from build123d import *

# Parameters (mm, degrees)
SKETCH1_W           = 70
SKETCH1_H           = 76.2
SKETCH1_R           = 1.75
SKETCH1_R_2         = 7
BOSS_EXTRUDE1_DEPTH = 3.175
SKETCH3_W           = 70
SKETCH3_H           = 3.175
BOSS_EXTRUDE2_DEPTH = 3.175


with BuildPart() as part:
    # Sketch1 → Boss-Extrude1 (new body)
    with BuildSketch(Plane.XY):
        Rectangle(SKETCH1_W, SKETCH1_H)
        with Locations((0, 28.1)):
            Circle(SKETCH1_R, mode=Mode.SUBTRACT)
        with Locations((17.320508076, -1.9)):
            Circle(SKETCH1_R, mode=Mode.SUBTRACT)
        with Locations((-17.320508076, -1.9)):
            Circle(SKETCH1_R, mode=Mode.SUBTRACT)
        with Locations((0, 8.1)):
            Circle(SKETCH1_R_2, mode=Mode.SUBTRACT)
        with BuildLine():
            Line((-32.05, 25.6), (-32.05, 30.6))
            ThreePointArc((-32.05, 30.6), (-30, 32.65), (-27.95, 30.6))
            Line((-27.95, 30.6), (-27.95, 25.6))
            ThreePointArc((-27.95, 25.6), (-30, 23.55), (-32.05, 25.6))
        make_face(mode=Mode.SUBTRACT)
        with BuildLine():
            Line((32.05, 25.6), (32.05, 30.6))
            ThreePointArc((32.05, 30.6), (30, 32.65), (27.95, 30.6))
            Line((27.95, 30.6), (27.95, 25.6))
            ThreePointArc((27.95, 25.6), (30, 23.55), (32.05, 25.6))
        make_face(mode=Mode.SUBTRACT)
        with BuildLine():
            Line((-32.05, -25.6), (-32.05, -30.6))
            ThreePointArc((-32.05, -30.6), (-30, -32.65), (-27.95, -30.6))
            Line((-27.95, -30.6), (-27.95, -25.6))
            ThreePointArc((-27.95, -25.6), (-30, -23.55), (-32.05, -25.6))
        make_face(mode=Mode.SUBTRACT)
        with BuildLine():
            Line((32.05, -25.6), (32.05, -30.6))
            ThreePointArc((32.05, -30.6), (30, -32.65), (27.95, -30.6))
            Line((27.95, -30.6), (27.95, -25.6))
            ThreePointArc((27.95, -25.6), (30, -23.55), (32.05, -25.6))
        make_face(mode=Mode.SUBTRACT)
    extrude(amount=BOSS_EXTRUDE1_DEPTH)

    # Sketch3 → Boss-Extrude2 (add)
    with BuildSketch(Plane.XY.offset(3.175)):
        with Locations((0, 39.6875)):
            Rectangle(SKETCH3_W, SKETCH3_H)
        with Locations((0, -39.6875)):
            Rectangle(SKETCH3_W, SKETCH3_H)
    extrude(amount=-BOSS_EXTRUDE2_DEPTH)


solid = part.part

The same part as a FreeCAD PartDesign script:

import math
import FreeCAD as App
import Part
import Sketcher
from FreeCAD import Vector
Q = App.Units.Quantity

doc = App.newDocument("Part")
params = doc.addObject("Spreadsheet::Sheet", "Params")
for row, (alias, value) in enumerate([
    ("sketch1_diameter", "14 mm"),
    ("sketch1_diameter2", "3.5 mm"),
    ("sketch1_width", "70 mm"),
    ("sketch1_height", "5 mm"),
    ("sketch1_radius", "2.05 mm"),
    ("pad1_length", "3.175 mm"),
    ("sketch2_width", "70 mm"),
    ("pad2_length", "3.175 mm"),
], start=1):
    params.set(f"A{row}", alias)
    params.set(f"B{row}", "=" + value)
    params.setAlias(f"B{row}", alias)

body = doc.addObject("PartDesign::Body", "Body")

# Sketch on XY plane
sketch1 = body.newObject("Sketcher::SketchObject", "Sketch")
sketch1.AttachmentSupport = (doc.getObject("XY_Plane"), [""])
sketch1.MapMode = "FlatFace"
sketch1.addGeometry(Part.LineSegment(Vector(-35, 38.1, 0), Vector(-35, -38.1, 0)), False)
sketch1.addGeometry(Part.LineSegment(Vector(-35, -38.1, 0), Vector(35, -38.1, 0)), False)
sketch1.addGeometry(Part.LineSegment(Vector(35, -38.1, 0), Vector(35, 38.1, 0)), False)
sketch1.addGeometry(Part.LineSegment(Vector(35, 38.1, 0), Vector(-35, 38.1, 0)), False)
sketch1.addGeometry(Part.LineSegment(Vector(-32, -30.6, 0), Vector(-32, -25.6, 0)), False)
sketch1.addGeometry(Part.ArcOfCircle(Part.Circle(Vector(-30, -25.6, 0), Vector(0, 0, 1), 2), math.radians(0), math.radians(180)), False)
sketch1.addGeometry(Part.LineSegment(Vector(-27.9, -25.6, 0), Vector(-27.9, -30.6, 0)), False)
sketch1.addGeometry(Part.ArcOfCircle(Part.Circle(Vector(-30, -30.6, 0), Vector(0, 0, 1), 2), math.radians(180), math.radians(360)), False)
sketch1.addGeometry(Part.Circle(Vector(-17.3, -1.9, 0), Vector(0, 0, 1), 1.8), False)
sketch1.addGeometry(Part.ArcOfCircle(Part.Circle(Vector(30, -25.6, 0), Vector(0, 0, 1), 2), math.radians(0), math.radians(180)), False)
sketch1.addGeometry(Part.LineSegment(Vector(32, -25.6, 0), Vector(32, -30.6, 0)), False)
sketch1.addGeometry(Part.ArcOfCircle(Part.Circle(Vector(30, -30.6, 0), Vector(0, 0, 1), 2), math.radians(180), math.radians(360)), False)
sketch1.addGeometry(Part.LineSegment(Vector(27.9, -30.6, 0), Vector(27.9, -25.6, 0)), False)
sketch1.addGeometry(Part.Circle(Vector(17.3, -1.9, 0), Vector(0, 0, 1), 1.8), False)
sketch1.addGeometry(Part.ArcOfCircle(Part.Circle(Vector(-30, 25.6, 0), Vector(0, 0, 1), 2), math.radians(180), math.radians(360)), False)
sketch1.addGeometry(Part.LineSegment(Vector(-32, 25.6, 0), Vector(-32, 30.6, 0)), False)
sketch1.addGeometry(Part.ArcOfCircle(Part.Circle(Vector(-30, 30.6, 0), Vector(0, 0, 1), 2), math.radians(0), math.radians(180)), False)
sketch1.addGeometry(Part.LineSegment(Vector(-27.9, 30.6, 0), Vector(-27.9, 25.6, 0)), False)
sketch1.addGeometry(Part.Circle(Vector(0, 8.1, 0), Vector(0, 0, 1), 7), False)
sketch1.addGeometry(Part.Circle(Vector(0, 28.1, 0), Vector(0, 0, 1), 1.8), False)
sketch1.addGeometry(Part.LineSegment(Vector(32, 30.6, 0), Vector(32, 25.6, 0)), False)
sketch1.addGeometry(Part.ArcOfCircle(Part.Circle(Vector(30, 25.6, 0), Vector(0, 0, 1), 2), math.radians(180), math.radians(360)), False)
sketch1.addGeometry(Part.LineSegment(Vector(27.9, 25.6, 0), Vector(27.9, 30.6, 0)), False)
sketch1.addGeometry(Part.ArcOfCircle(Part.Circle(Vector(30, 30.6, 0), Vector(0, 0, 1), 2), math.radians(0), math.radians(180)), False)
sketch1.addConstraint(Sketcher.Constraint("Coincident", 0, 2, 1, 1))
sketch1.addConstraint(Sketcher.Constraint("Coincident", 1, 2, 2, 1))
sketch1.addConstraint(Sketcher.Constraint("Coincident", 2, 2, 3, 1))
sketch1.addConstraint(Sketcher.Constraint("Coincident", 3, 2, 0, 1))
sketch1.addConstraint(Sketcher.Constraint("Tangent", 4, 2, 5, 2))
sketch1.addConstraint(Sketcher.Constraint("Tangent", 5, 1, 6, 1))
sketch1.addConstraint(Sketcher.Constraint("Tangent", 6, 2, 7, 2))
sketch1.addConstraint(Sketcher.Constraint("Tangent", 7, 1, 4, 1))
sketch1.addConstraint(Sketcher.Constraint("Tangent", 9, 1, 10, 1))
sketch1.addConstraint(Sketcher.Constraint("Tangent", 10, 2, 11, 2))
sketch1.addConstraint(Sketcher.Constraint("Tangent", 11, 1, 12, 1))
sketch1.addConstraint(Sketcher.Constraint("Tangent", 12, 2, 9, 2))
sketch1.addConstraint(Sketcher.Constraint("Tangent", 14, 1, 15, 1))
sketch1.addConstraint(Sketcher.Constraint("Tangent", 15, 2, 16, 2))
sketch1.addConstraint(Sketcher.Constraint("Tangent", 16, 1, 17, 1))
sketch1.addConstraint(Sketcher.Constraint("Tangent", 17, 2, 14, 2))
sketch1.addConstraint(Sketcher.Constraint("Tangent", 20, 2, 21, 2))
sketch1.addConstraint(Sketcher.Constraint("Tangent", 21, 1, 22, 1))
sketch1.addConstraint(Sketcher.Constraint("Tangent", 22, 2, 23, 2))
sketch1.addConstraint(Sketcher.Constraint("Tangent", 23, 1, 20, 1))
sketch1.addConstraint(Sketcher.Constraint("Vertical", 0))
sketch1.addConstraint(Sketcher.Constraint("Horizontal", 1))
sketch1.addConstraint(Sketcher.Constraint("Vertical", 2))
sketch1.addConstraint(Sketcher.Constraint("Horizontal", 3))
sketch1.addConstraint(Sketcher.Constraint("Vertical", 4))
sketch1.addConstraint(Sketcher.Constraint("Vertical", 6))
sketch1.addConstraint(Sketcher.Constraint("Vertical", 10))
sketch1.addConstraint(Sketcher.Constraint("Vertical", 12))
sketch1.addConstraint(Sketcher.Constraint("Vertical", 15))
sketch1.addConstraint(Sketcher.Constraint("Vertical", 17))
sketch1.addConstraint(Sketcher.Constraint("Vertical", 20))
sketch1.addConstraint(Sketcher.Constraint("Vertical", 22))
sketch1.addConstraint(Sketcher.Constraint("Equal", 7, 9))
sketch1.addConstraint(Sketcher.Constraint("Equal", 8, 13))
sketch1.addConstraint(Sketcher.Constraint("Equal", 11, 14))
sketch1.addConstraint(Sketcher.Constraint("Equal", 13, 19))
sketch1.addConstraint(Sketcher.Constraint("Equal", 16, 21))
sketch1.addConstraint(Sketcher.Constraint("Symmetric", 9, 3, 14, 3, -1, 1))
sketch1.addConstraint(Sketcher.Constraint("Symmetric", 5, 3, 21, 3, -1, 1))
sketch1.addConstraint(Sketcher.Constraint("Symmetric", 0, 2, 2, 2, -1, 1))
sketch1.addConstraint(Sketcher.Constraint("Symmetric", 5, 3, 9, 3, -2))
sketch1.addConstraint(Sketcher.Constraint("Symmetric", 8, 3, 13, 3, -2))
sketch1.addConstraint(Sketcher.Constraint("PointOnObject", 18, 3, -2))
sketch1.addConstraint(Sketcher.Constraint("PointOnObject", 19, 3, -2))
sketch1.addConstraint(Sketcher.Constraint("Horizontal", 7, 3, 11, 3))
sketch1.addConstraint(Sketcher.Constraint("Horizontal", 16, 3, 23, 3))
sketch1.addConstraint(Sketcher.Constraint("Equal", 12, 15))
sketch1.addConstraint(Sketcher.Constraint("Diameter", 18, Q("14 mm")))
sketch1.addConstraint(Sketcher.Constraint("Diameter", 8, Q("3.5 mm")))
sketch1.addConstraint(Sketcher.Constraint("DistanceX", 1, 1, 1, 2, Q("70 mm")))
sketch1.addConstraint(Sketcher.Constraint("DistanceY", 4, 1, 4, 2, Q("5 mm")))
sketch1.addConstraint(Sketcher.Constraint("Radius", 5, Q("2.05 mm")))
sketch1.addConstraint(Sketcher.Constraint("DistanceY", 0, 2, 0, 1, Q("76.2 mm")))
sketch1.addConstraint(Sketcher.Constraint("DistanceX", 5, 3, -1, 1, Q("30 mm")))
sketch1.addConstraint(Sketcher.Constraint("DistanceY", 8, 3, 18, 3, Q("10 mm")))
sketch1.addConstraint(Sketcher.Constraint("DistanceY", 18, 3, 19, 3, Q("20 mm")))
sketch1.addConstraint(Sketcher.Constraint("DistanceY", 19, 3, 2, 2, Q("10 mm")))
sketch1.addConstraint(Sketcher.Constraint("DistanceY", 5, 3, -1, 1, Q("25.6 mm")))
sketch1.addConstraint(Sketcher.Constraint("DistanceX", 8, 3, -1, 1, Q("17.320508 mm")))
sketch1.setExpression("Constraints[47]", "Params.sketch1_diameter")
sketch1.setExpression("Constraints[48]", "Params.sketch1_diameter2")
sketch1.setExpression("Constraints[49]", "Params.sketch1_width")
sketch1.setExpression("Constraints[50]", "Params.sketch1_height")
sketch1.setExpression("Constraints[51]", "Params.sketch1_radius")
pad1 = body.newObject("PartDesign::Pad", "Pad")
pad1.Profile = sketch1
pad1.setExpression("Length", "Params.pad1_length")

# Sketch on XY plane
sketch2 = body.newObject("Sketcher::SketchObject", "Sketch001")
sketch2.AttachmentSupport = (doc.getObject("XY_Plane"), [""])
sketch2.MapMode = "FlatFace"
sketch2.AttachmentOffset = App.Placement(Vector(0, 0, 3.175), App.Rotation())
sketch2.addGeometry(Part.LineSegment(Vector(-35, 41.3, 0), Vector(-35, 38.1, 0)), False)
sketch2.addGeometry(Part.LineSegment(Vector(-35, 38.1, 0), Vector(35, 38.1, 0)), False)
sketch2.addGeometry(Part.LineSegment(Vector(35, 38.1, 0), Vector(35, 41.3, 0)), False)
sketch2.addGeometry(Part.LineSegment(Vector(35, 41.3, 0), Vector(-35, 41.3, 0)), False)
sketch2.addGeometry(Part.LineSegment(Vector(-35, -38.1, 0), Vector(-35, -41.3, 0)), False)
sketch2.addGeometry(Part.LineSegment(Vector(-35, -41.3, 0), Vector(35, -41.3, 0)), False)
sketch2.addGeometry(Part.LineSegment(Vector(35, -41.3, 0), Vector(35, -38.1, 0)), False)
sketch2.addGeometry(Part.LineSegment(Vector(35, -38.1, 0), Vector(-35, -38.1, 0)), False)
sketch2.addConstraint(Sketcher.Constraint("Coincident", 0, 2, 1, 1))
sketch2.addConstraint(Sketcher.Constraint("Coincident", 1, 2, 2, 1))
sketch2.addConstraint(Sketcher.Constraint("Coincident", 2, 2, 3, 1))
sketch2.addConstraint(Sketcher.Constraint("Coincident", 3, 2, 0, 1))
sketch2.addConstraint(Sketcher.Constraint("Coincident", 4, 2, 5, 1))
sketch2.addConstraint(Sketcher.Constraint("Coincident", 5, 2, 6, 1))
sketch2.addConstraint(Sketcher.Constraint("Coincident", 6, 2, 7, 1))
sketch2.addConstraint(Sketcher.Constraint("Coincident", 7, 2, 4, 1))
sketch2.addConstraint(Sketcher.Constraint("Vertical", 0))
sketch2.addConstraint(Sketcher.Constraint("Horizontal", 1))
sketch2.addConstraint(Sketcher.Constraint("Vertical", 2))
sketch2.addConstraint(Sketcher.Constraint("Horizontal", 3))
sketch2.addConstraint(Sketcher.Constraint("Vertical", 4))
sketch2.addConstraint(Sketcher.Constraint("Horizontal", 5))
sketch2.addConstraint(Sketcher.Constraint("Vertical", 6))
sketch2.addConstraint(Sketcher.Constraint("Horizontal", 7))
sketch2.addConstraint(Sketcher.Constraint("Symmetric", 2, 2, 4, 2, -1, 1))
sketch2.addConstraint(Sketcher.Constraint("Symmetric", 0, 2, 6, 2, -1, 1))
sketch2.addConstraint(Sketcher.Constraint("Vertical", 3, 2, 4, 2))
sketch2.addConstraint(Sketcher.Constraint("DistanceX", 1, 1, 1, 2, Q("70 mm")))
sketch2.addConstraint(Sketcher.Constraint("DistanceY", -1, 1, 0, 2, Q("38.1 mm")))
sketch2.addConstraint(Sketcher.Constraint("DistanceY", 0, 2, 0, 1, Q("3.175 mm")))
sketch2.setExpression("Constraints[19]", "Params.sketch2_width")
pad2 = body.newObject("PartDesign::Pad", "Pad001")
pad2.Profile = sketch2
pad2.setExpression("Length", "Params.pad2_length")
pad2.Reversed = True

doc.recompute()
